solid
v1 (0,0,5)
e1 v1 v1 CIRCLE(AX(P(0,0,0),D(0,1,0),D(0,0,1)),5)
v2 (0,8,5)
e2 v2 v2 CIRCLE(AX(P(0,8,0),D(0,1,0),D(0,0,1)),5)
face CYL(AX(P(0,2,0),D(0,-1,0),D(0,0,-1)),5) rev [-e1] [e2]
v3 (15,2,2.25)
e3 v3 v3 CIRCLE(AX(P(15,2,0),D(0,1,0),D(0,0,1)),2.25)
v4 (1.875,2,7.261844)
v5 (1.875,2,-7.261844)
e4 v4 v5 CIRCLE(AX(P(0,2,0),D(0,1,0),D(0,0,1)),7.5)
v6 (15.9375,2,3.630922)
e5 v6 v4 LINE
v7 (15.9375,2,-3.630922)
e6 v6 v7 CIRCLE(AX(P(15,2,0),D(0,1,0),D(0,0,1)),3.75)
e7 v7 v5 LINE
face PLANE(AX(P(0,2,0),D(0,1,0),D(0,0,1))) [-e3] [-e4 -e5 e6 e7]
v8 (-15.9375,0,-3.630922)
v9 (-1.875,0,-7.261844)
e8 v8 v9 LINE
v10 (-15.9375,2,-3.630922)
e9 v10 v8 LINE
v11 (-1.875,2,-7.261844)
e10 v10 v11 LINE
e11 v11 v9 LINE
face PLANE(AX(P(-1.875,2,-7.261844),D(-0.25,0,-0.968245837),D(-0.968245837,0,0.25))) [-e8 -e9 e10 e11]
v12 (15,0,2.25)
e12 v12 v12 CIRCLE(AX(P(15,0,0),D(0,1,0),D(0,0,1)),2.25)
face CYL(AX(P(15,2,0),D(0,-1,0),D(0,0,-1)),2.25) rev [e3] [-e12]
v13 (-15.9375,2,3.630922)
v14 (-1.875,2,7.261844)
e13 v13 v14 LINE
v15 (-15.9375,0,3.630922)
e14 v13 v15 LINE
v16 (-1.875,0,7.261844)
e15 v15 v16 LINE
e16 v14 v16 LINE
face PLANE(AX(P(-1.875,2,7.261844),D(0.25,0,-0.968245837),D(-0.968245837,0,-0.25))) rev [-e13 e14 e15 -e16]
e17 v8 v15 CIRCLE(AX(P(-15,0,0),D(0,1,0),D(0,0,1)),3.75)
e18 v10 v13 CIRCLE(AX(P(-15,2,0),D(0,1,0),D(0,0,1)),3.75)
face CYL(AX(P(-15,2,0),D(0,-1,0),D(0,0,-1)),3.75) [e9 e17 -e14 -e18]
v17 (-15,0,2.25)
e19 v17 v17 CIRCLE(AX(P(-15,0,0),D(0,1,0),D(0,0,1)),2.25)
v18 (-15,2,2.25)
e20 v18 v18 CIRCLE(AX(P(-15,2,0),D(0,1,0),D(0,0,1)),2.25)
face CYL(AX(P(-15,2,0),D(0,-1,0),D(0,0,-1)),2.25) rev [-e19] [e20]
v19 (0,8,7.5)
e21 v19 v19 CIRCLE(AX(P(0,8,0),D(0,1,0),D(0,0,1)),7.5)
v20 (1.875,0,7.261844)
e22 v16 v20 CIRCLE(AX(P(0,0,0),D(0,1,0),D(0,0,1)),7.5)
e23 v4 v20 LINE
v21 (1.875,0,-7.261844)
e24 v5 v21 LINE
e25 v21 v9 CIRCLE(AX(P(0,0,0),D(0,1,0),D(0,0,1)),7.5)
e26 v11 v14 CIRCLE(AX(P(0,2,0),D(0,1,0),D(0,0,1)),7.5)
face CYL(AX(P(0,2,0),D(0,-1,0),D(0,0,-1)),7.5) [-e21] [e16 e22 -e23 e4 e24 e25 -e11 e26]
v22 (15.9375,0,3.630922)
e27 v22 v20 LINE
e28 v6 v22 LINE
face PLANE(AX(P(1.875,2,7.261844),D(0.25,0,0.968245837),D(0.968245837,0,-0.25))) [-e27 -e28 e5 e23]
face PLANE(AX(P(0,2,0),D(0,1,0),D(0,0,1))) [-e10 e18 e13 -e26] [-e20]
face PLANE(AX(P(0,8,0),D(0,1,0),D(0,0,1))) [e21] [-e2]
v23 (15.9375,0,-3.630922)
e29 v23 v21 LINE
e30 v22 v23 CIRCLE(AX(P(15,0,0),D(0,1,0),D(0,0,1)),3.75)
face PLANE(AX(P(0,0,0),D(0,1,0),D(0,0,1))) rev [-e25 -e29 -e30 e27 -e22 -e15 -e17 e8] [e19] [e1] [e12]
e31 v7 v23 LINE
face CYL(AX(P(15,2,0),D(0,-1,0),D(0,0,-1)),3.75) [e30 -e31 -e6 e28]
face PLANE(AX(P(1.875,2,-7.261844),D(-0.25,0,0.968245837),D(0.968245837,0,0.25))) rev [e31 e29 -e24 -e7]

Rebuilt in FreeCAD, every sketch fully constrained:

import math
import FreeCAD as App
import Part
import Sketcher

V = App.Vector

doc = App.newDocument("Part")
body = doc.addObject("PartDesign::Body", "Body")

# Sketch on XZ plane
sketch1 = body.newObject("Sketcher::SketchObject", "Sketch")
sketch1.AttachmentSupport = (doc.getObject("XZ_Plane"), [""])
sketch1.MapMode = "FlatFace"
sketch1.addGeometry(Part.LineSegment(V(-1.9, -7.3, 0), V(-15.9, -3.6, 0)), False)
sketch1.addGeometry(Part.ArcOfCircle(Part.Circle(V(-15, 0, 0), V(0, 0, 1), 3.8), math.radians(104), math.radians(256)), False)
sketch1.addGeometry(Part.LineSegment(V(-15.9, 3.6, 0), V(-1.9, 7.3, 0)), False)
sketch1.addGeometry(Part.ArcOfCircle(Part.Circle(V(0, 0, 0), V(0, 0, 1), 7.5), math.radians(76), math.radians(104)), False)
sketch1.addGeometry(Part.LineSegment(V(1.9, 7.3, 0), V(15.9, 3.6, 0)), False)
sketch1.addGeometry(Part.ArcOfCircle(Part.Circle(V(15, 0, 0), V(0, 0, 1), 3.8), math.radians(-76), math.radians(76)), False)
sketch1.addGeometry(Part.LineSegment(V(15.9, -3.6, 0), V(1.9, -7.3, 0)), False)
sketch1.addGeometry(Part.ArcOfCircle(Part.Circle(V(0, 0, 0), V(0, 0, 1), 7.5), math.radians(-104), math.radians(-76)), False)
sketch1.addGeometry(Part.Circle(V(-15, 0, 0), V(0, 0, 1), 2.2), False)
sketch1.addGeometry(Part.Circle(V(0, 0, 0), V(0, 0, 1), 5), False)
sketch1.addGeometry(Part.Circle(V(15, 0, 0), V(0, 0, 1), 2.2), False)
sketch1.addConstraint(Sketcher.Constraint("Tangent", 0, 2, 1, 2))
sketch1.addConstraint(Sketcher.Constraint("Tangent", 1, 1, 2, 1))
sketch1.addConstraint(Sketcher.Constraint("Tangent", 2, 2, 3, 2))
sketch1.addConstraint(Sketcher.Constraint("Tangent", 3, 1, 4, 1))
sketch1.addConstraint(Sketcher.Constraint("Tangent", 4, 2, 5, 2))
sketch1.addConstraint(Sketcher.Constraint("Tangent", 5, 1, 6, 1))
sketch1.addConstraint(Sketcher.Constraint("Tangent", 6, 2, 7, 2))
sketch1.addConstraint(Sketcher.Constraint("Tangent", 7, 1, 0, 1))
sketch1.addConstraint(Sketcher.Constraint("Coincident", 3, 3, -1, 1))
sketch1.addConstraint(Sketcher.Constraint("Coincident", 7, 3, -1, 1))
sketch1.addConstraint(Sketcher.Constraint("Coincident", 9, 3, -1, 1))
sketch1.addConstraint(Sketcher.Constraint("Coincident", 8, 3, 1, 3))
sketch1.addConstraint(Sketcher.Constraint("Coincident", 10, 3, 5, 3))
sketch1.addConstraint(Sketcher.Constraint("Equal", 1, 5))
sketch1.addConstraint(Sketcher.Constraint("Equal", 3, 7))
sketch1.addConstraint(Sketcher.Constraint("Equal", 8, 10))
sketch1.addConstraint(Sketcher.Constraint("Symmetric", 1, 3, 5, 3, -1, 1))
sketch1.addConstraint(Sketcher.Constraint("PointOnObject", 1, 3, -1))
sketch1.addConstraint(Sketcher.Constraint("Diameter", 9, 10.0))
sketch1.addConstraint(Sketcher.Constraint("Diameter", 8, 4.5))
sketch1.addConstraint(Sketcher.Constraint("Radius", 3, 7.5))
sketch1.addConstraint(Sketcher.Constraint("Radius", 1, 3.75))
sketch1.addConstraint(Sketcher.Constraint("DistanceX", 1, 3, -1, 1, 15.0))
pad1 = body.newObject("PartDesign::Pad", "Pad")
pad1.Profile = sketch1
pad1.Length = 2
pad1.Reversed = True

# Sketch on XZ plane
sketch2 = body.newObject("Sketcher::SketchObject", "Sketch001")
sketch2.AttachmentSupport = (doc.getObject("XZ_Plane"), [""])
sketch2.MapMode = "FlatFace"
sketch2.AttachmentOffset = App.Placement(V(0, 0, -2), App.Rotation())
sketch2.addGeometry(Part.Circle(V(0, 0, 0), V(0, 0, 1), 8), False)
sketch2.addGeometry(Part.Circle(V(0, 0, 0), V(0, 0, 1), 5), False)
sketch2.addConstraint(Sketcher.Constraint("Coincident", 0, 3, -1, 1))
sketch2.addConstraint(Sketcher.Constraint("Coincident", 1, 3, -1, 1))
sketch2.addConstraint(Sketcher.Constraint("Diameter", 0, 15.0))
sketch2.addConstraint(Sketcher.Constraint("Diameter", 1, 10.0))
pad2 = body.newObject("PartDesign::Pad", "Pad001")
pad2.Profile = sketch2
pad2.Length = 6
pad2.Reversed = True

doc.recompute()
